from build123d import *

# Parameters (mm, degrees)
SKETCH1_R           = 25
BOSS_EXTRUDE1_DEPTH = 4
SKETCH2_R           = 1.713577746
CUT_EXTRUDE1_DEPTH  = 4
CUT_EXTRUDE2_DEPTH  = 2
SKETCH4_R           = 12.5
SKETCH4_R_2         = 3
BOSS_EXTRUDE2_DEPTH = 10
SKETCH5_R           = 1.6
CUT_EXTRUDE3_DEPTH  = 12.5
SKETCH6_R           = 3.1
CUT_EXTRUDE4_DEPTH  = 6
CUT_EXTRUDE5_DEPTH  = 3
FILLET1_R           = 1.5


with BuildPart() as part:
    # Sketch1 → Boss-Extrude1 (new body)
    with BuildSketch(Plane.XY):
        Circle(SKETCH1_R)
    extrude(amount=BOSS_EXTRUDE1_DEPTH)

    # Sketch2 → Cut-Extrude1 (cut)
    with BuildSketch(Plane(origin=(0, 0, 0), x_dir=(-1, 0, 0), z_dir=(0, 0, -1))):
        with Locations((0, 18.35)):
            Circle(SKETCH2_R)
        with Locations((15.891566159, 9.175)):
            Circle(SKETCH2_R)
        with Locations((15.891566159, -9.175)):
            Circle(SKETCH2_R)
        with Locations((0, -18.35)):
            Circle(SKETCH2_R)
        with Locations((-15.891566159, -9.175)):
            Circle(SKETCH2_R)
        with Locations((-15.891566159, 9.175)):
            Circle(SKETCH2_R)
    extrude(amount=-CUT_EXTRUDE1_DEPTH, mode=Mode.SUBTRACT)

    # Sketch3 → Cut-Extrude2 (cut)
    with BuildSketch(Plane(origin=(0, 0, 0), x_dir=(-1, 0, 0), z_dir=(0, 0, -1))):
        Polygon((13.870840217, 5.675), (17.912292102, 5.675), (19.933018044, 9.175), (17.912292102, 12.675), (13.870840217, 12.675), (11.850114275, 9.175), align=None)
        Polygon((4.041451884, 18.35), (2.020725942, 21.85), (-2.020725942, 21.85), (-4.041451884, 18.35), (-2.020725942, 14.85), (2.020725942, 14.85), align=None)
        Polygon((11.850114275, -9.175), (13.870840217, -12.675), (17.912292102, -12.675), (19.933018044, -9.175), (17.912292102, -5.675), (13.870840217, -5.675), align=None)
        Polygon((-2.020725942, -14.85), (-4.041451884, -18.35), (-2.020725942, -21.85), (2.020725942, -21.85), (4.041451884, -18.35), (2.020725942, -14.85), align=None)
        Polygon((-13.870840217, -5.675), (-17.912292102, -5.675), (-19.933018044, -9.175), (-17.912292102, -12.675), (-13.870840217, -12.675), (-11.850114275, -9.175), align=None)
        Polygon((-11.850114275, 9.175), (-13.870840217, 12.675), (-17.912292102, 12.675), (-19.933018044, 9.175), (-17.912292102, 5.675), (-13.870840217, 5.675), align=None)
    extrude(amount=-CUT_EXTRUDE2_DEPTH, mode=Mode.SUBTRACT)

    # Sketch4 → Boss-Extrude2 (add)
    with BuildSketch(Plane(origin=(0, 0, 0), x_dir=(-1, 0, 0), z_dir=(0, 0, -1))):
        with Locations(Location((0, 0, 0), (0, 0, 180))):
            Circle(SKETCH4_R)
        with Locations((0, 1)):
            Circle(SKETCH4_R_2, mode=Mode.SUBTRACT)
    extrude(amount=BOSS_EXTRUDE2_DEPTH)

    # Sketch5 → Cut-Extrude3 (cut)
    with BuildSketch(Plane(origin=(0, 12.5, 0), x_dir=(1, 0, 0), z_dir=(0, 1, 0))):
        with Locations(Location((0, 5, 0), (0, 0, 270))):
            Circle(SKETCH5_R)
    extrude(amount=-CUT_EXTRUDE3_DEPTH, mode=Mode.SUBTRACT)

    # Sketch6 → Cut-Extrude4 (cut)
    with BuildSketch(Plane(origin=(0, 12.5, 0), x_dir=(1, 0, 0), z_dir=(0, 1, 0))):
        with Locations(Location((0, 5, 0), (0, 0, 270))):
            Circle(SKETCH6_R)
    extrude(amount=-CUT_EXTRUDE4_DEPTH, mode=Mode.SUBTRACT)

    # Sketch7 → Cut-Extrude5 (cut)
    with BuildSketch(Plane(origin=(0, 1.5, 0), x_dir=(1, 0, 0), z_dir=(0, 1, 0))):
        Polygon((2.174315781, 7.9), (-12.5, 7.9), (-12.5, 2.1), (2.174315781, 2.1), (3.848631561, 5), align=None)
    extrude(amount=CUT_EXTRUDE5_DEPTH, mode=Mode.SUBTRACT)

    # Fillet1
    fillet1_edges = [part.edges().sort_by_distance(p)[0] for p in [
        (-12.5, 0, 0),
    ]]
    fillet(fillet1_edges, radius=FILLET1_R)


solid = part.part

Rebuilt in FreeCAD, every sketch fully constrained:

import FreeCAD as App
import Part
import Sketcher

V = App.Vector
Q = App.Units.Quantity


def edges_at(feature, points):
    """Names of the edges that pass closest to the given points."""
    edges = feature.Shape.Edges
    near = lambda p: min(range(len(edges)), key=lambda i: edges[i].distToShape(Part.Vertex(*p))[0])
    return sorted({f"Edge{near(p) + 1}" for p in points})

doc = App.newDocument("Part")
body = doc.addObject("PartDesign::Body", "Body")

# Sketch on XY plane
sketch1 = body.newObject("Sketcher::SketchObject", "Sketch")
sketch1.AttachmentSupport = (doc.getObject("XY_Plane"), [""])
sketch1.MapMode = "FlatFace"
sketch1.addGeometry(Part.Circle(V(0, 0, 0), V(0, 0, 1), 25), False)
sketch1.addConstraint([
    Sketcher.Constraint("Coincident", 0, 3, -1, 1),
    Sketcher.Constraint("Diameter", 0, 50.0),
])
pad1 = body.newObject("PartDesign::Pad", "Pad")
pad1.Profile = sketch1
pad1.Length = 4

# Sketch on XY plane
sketch2 = body.newObject("Sketcher::SketchObject", "Sketch001")
sketch2.AttachmentSupport = (doc.getObject("XY_Plane"), [""])
sketch2.MapMode = "FlatFace"
sketch2.addGeometry([
    Part.Circle(V(0, 18.4, 0), V(0, 0, 1), 1.7),  # 0
    Part.Circle(V(-15.9, 9.2, 0), V(0, 0, 1), 1.7),  # 1
    Part.Circle(V(-15.9, -9.2, 0), V(0, 0, 1), 1.7),  # 2
    Part.Circle(V(0, -18.4, 0), V(0, 0, 1), 1.7),  # 3
    Part.Circle(V(15.9, -9.2, 0), V(0, 0, 1), 1.7),  # 4
    Part.Circle(V(15.9, 9.2, 0), V(0, 0, 1), 1.7),  # 5
], False)
sketch2.addConstraint([
    Sketcher.Constraint("Equal", 0, 1),
    Sketcher.Constraint("Equal", 1, 2),
    Sketcher.Constraint("Equal", 2, 3),
    Sketcher.Constraint("Equal", 3, 4),
    Sketcher.Constraint("Equal", 4, 5),
    Sketcher.Constraint("Symmetric", 0, 3, 3, 3, -1, 1),
    Sketcher.Constraint("Symmetric", 1, 3, 4, 3, -1, 1),
    Sketcher.Constraint("Symmetric", 2, 3, 5, 3, -1, 1),
    Sketcher.Constraint("Symmetric", 2, 3, 4, 3, -2),
    Sketcher.Constraint("PointOnObject", 0, 3, -2),
    Sketcher.Constraint("DistanceY", 3, 3, 0, 3, 36.7),
    Sketcher.Constraint("DistanceY", 2, 3, 1, 3, 18.35),
    Sketcher.Constraint("Diameter", 0, 3.427155),
    Sketcher.Constraint("DistanceX", 1, 3, -1, 1, 15.891566),
])
pocket1 = body.newObject("PartDesign::Pocket", "Pocket")
pocket1.Profile = sketch2
pocket1.Length = 4
pocket1.Reversed = True

# Sketch on XY plane
sketch3 = body.newObject("Sketcher::SketchObject", "Sketch002")
sketch3.AttachmentSupport = (doc.getObject("XY_Plane"), [""])
sketch3.MapMode = "FlatFace"
sketch3.addGeometry([
    Part.LineSegment(V(-13.9, 5.7, 0), V(-17.9, 5.7, 0)),  # 0
    Part.LineSegment(V(-17.9, 5.7, 0), V(-19.9, 9.2, 0)),  # 1
    Part.LineSegment(V(-19.9, 9.2, 0), V(-17.9, 12.7, 0)),  # 2
    Part.LineSegment(V(-17.9, 12.7, 0), V(-13.9, 12.7, 0)),  # 3
    Part.LineSegment(V(-13.9, 12.7, 0), V(-11.9, 9.2, 0)),  # 4
    Part.LineSegment(V(-11.9, 9.2, 0), V(-13.9, 5.7, 0)),  # 5
    Part.LineSegment(V(-4, 18.4, 0), V(-2, 21.9, 0)),  # 6
    Part.LineSegment(V(-2, 21.9, 0), V(2, 21.9, 0)),  # 7
    Part.LineSegment(V(2, 21.9, 0), V(4, 18.4, 0)),  # 8
    Part.LineSegment(V(4, 18.4, 0), V(2, 14.8, 0)),  # 9
    Part.LineSegment(V(2, 14.8, 0), V(-2, 14.8, 0)),  # 10
    Part.LineSegment(V(-2, 14.8, 0), V(-4, 18.4, 0)),  # 11
    Part.LineSegment(V(-11.9, -9.2, 0), V(-13.9, -12.7, 0)),  # 12
    Part.LineSegment(V(-13.9, -12.7, 0), V(-17.9, -12.7, 0)),  # 13
    Part.LineSegment(V(-17.9, -12.7, 0), V(-19.9, -9.2, 0)),  # 14
    Part.LineSegment(V(-19.9, -9.2, 0), V(-17.9, -5.7, 0)),  # 15
    Part.LineSegment(V(-17.9, -5.7, 0), V(-13.9, -5.7, 0)),  # 16
    Part.LineSegment(V(-13.9, -5.7, 0), V(-11.9, -9.2, 0)),  # 17
    Part.LineSegment(V(2, -14.8, 0), V(4, -18.4, 0)),  # 18
    Part.LineSegment(V(4, -18.4, 0), V(2, -21.9, 0)),  # 19
    Part.LineSegment(V(2, -21.9, 0), V(-2, -21.9, 0)),  # 20
    Part.LineSegment(V(-2, -21.9, 0), V(-4, -18.4, 0)),  # 21
    Part.LineSegment(V(-4, -18.4, 0), V(-2, -14.8, 0)),  # 22
    Part.LineSegment(V(-2, -14.8, 0), V(2, -14.8, 0)),  # 23
    Part.LineSegment(V(13.9, -5.7, 0), V(17.9, -5.7, 0)),  # 24
    Part.LineSegment(V(17.9, -5.7, 0), V(19.9, -9.2, 0)),  # 25
    Part.LineSegment(V(19.9, -9.2, 0), V(17.9, -12.7, 0)),  # 26
    Part.LineSegment(V(17.9, -12.7, 0), V(13.9, -12.7, 0)),  # 27
    Part.LineSegment(V(13.9, -12.7, 0), V(11.9, -9.2, 0)),  # 28
    Part.LineSegment(V(11.9, -9.2, 0), V(13.9, -5.7, 0)),  # 29
    Part.LineSegment(V(11.9, 9.2, 0), V(13.9, 12.7, 0)),  # 30
    Part.LineSegment(V(13.9, 12.7, 0), V(17.9, 12.7, 0)),  # 31
    Part.LineSegment(V(17.9, 12.7, 0), V(19.9, 9.2, 0)),  # 32
    Part.LineSegment(V(19.9, 9.2, 0), V(17.9, 5.7, 0)),  # 33
    Part.LineSegment(V(17.9, 5.7, 0), V(13.9, 5.7, 0)),  # 34
    Part.LineSegment(V(13.9, 5.7, 0), V(11.9, 9.2, 0)),  # 35
], False)
sketch3.addConstraint([
    Sketcher.Constraint("Coincident", 0, 2, 1, 1),
    Sketcher.Constraint("Coincident", 1, 2, 2, 1),
    Sketcher.Constraint("Coincident", 2, 2, 3, 1),
    Sketcher.Constraint("Coincident", 3, 2, 4, 1),
    Sketcher.Constraint("Coincident", 4, 2, 5, 1),
    Sketcher.Constraint("Coincident", 5, 2, 0, 1),
    Sketcher.Constraint("Coincident", 6, 2, 7, 1),
    Sketcher.Constraint("Coincident", 7, 2, 8, 1),
    Sketcher.Constraint("Coincident", 8, 2, 9, 1),
    Sketcher.Constraint("Coincident", 9, 2, 10, 1),
    Sketcher.Constraint("Coincident", 10, 2, 11, 1),
    Sketcher.Constraint("Coincident", 11, 2, 6, 1),
    Sketcher.Constraint("Coincident", 12, 2, 13, 1),
    Sketcher.Constraint("Coincident", 13, 2, 14, 1),
    Sketcher.Constraint("Coincident", 14, 2, 15, 1),
    Sketcher.Constraint("Coincident", 15, 2, 16, 1),
    Sketcher.Constraint("Coincident", 16, 2, 17, 1),
    Sketcher.Constraint("Coincident", 17, 2, 12, 1),
    Sketcher.Constraint("Coincident", 18, 2, 19, 1),
    Sketcher.Constraint("Coincident", 19, 2, 20, 1),
    Sketcher.Constraint("Coincident", 20, 2, 21, 1),
    Sketcher.Constraint("Coincident", 21, 2, 22, 1),
    Sketcher.Constraint("Coincident", 22, 2, 23, 1),
    Sketcher.Constraint("Coincident", 23, 2, 18, 1),
    Sketcher.Constraint("Coincident", 24, 2, 25, 1),
    Sketcher.Constraint("Coincident", 25, 2, 26, 1),
    Sketcher.Constraint("Coincident", 26, 2, 27, 1),
    Sketcher.Constraint("Coincident", 27, 2, 28, 1),
    Sketcher.Constraint("Coincident", 28, 2, 29, 1),
    Sketcher.Constraint("Coincident", 29, 2, 24, 1),
    Sketcher.Constraint("Coincident", 30, 2, 31, 1),
    Sketcher.Constraint("Coincident", 31, 2, 32, 1),
    Sketcher.Constraint("Coincident", 32, 2, 33, 1),
    Sketcher.Constraint("Coincident", 33, 2, 34, 1),
    Sketcher.Constraint("Coincident", 34, 2, 35, 1),
    Sketcher.Constraint("Coincident", 35, 2, 30, 1),
    Sketcher.Constraint("Horizontal", 0),
    Sketcher.Constraint("Horizontal", 3),
    Sketcher.Constraint("Horizontal", 7),
    Sketcher.Constraint("Horizontal", 10),
    Sketcher.Constraint("Horizontal", 13),
    Sketcher.Constraint("Horizontal", 16),
    Sketcher.Constraint("Horizontal", 20),
    Sketcher.Constraint("Horizontal", 23),
    Sketcher.Constraint("Horizontal", 24),
    Sketcher.Constraint("Horizontal", 27),
    Sketcher.Constraint("Horizontal", 31),
    Sketcher.Constraint("Horizontal", 34),
    Sketcher.Constraint("Symmetric", 11, 2, 18, 2, -1, 1),
    Sketcher.Constraint("Symmetric", 6, 2, 19, 2, -1, 1),
    Sketcher.Constraint("Symmetric", 8, 2, 21, 2, -1, 1),
    Sketcher.Constraint("Symmetric", 9, 2, 22, 2, -1, 1),
    Sketcher.Constraint("Symmetric", 0, 2, 24, 2, -1, 1),
    Sketcher.Constraint("Symmetric", 1, 2, 25, 2, -1, 1),
    Sketcher.Constraint("Symmetric", 2, 2, 26, 2, -1, 1),
    Sketcher.Constraint("Symmetric", 4, 2, 28, 2, -1, 1),
    Sketcher.Constraint("Symmetric", 12, 2, 30, 2, -1, 1),
    Sketcher.Constraint("Symmetric", 14, 2, 32, 2, -1, 1),
    Sketcher.Constraint("Symmetric", 15, 2, 33, 2, -1, 1),
    Sketcher.Constraint("Symmetric", 17, 2, 35, 2, -1, 1),
    Sketcher.Constraint("Symmetric", 8, 2, 11, 2, -2),
    Sketcher.Constraint("Symmetric", 15, 2, 24, 2, -2),
    Sketcher.Constraint("Symmetric", 14, 2, 25, 2, -2),
    Sketcher.Constraint("Symmetric", 13, 2, 26, 2, -2),
    Sketcher.Constraint("Symmetric", 17, 2, 28, 2, -2),
    Sketcher.Constraint("Parallel", 1, 4),
    Sketcher.Constraint("Parallel", 2, 5),
    Sketcher.Constraint("Parallel", 5, 6),
    Sketcher.Constraint("Parallel", 4, 8),
    Sketcher.Constraint("Parallel", 6, 9),
    Sketcher.Constraint("Parallel", 8, 11),
    Sketcher.Constraint("Parallel", 9, 12),
    Sketcher.Constraint("Parallel", 11, 14),
    Sketcher.Constraint("Parallel", 14, 17),
    Sketcher.Constraint("Parallel", 17, 18),
    Sketcher.Constraint("Parallel", 18, 21),
    Sketcher.Constraint("Parallel", 25, 28),
    Sketcher.Constraint("Parallel", 26, 29),
    Sketcher.Constraint("Parallel", 28, 32),
    Sketcher.Constraint("Parallel", 32, 35),
    Sketcher.Constraint("Horizontal", 1, 2, 4, 2),
    Sketcher.Constraint("Vertical", 0, 2, 2, 2),
    Sketcher.Constraint("Vertical", 7, 2, 9, 2),
    Sketcher.Constraint("Equal", 3, 7),
    Sketcher.Constraint("Equal", 5, 6),
    Sketcher.Constraint("Angle", 1, Q("120 deg")),
    Sketcher.Constraint("DistanceY", 0, 2, 2, 2, 7.0),
    Sketcher.Constraint("DistanceY", -1, 1, 6, 2, 21.85),
    Sketcher.Constraint("DistanceY", 12, 2, 5, 2, 18.35),
    Sketcher.Constraint("DistanceX", 0, 2, 0, 1, 4.041452),
    Sketcher.Constraint("DistanceX", 1, 2, -1, 1, 19.933018),
])
pocket2 = body.newObject("PartDesign::Pocket", "Pocket001")
pocket2.Profile = sketch3
pocket2.Length = 2
pocket2.Reversed = True

# Sketch on XY plane
sketch4 = body.newObject("Sketcher::SketchObject", "Sketch003")
sketch4.AttachmentSupport = (doc.getObject("XY_Plane"), [""])
sketch4.MapMode = "FlatFace"
sketch4.addGeometry([
    Part.Circle(V(0, 0, 0), V(0, 0, 1), 12.5),
    Part.Circle(V(0, 1, 0), V(0, 0, 1), 3),
], False)
sketch4.addConstraint([
    Sketcher.Constraint("Coincident", 0, 3, -1, 1),
    Sketcher.Constraint("PointOnObject", 1, 3, -2),
    Sketcher.Constraint("Diameter", 0, 25.0),
    Sketcher.Constraint("Diameter", 1, 6.0),
    Sketcher.Constraint("DistanceY", -1, 1, 1, 3, 1.0),
])
pad2 = body.newObject("PartDesign::Pad", "Pad001")
pad2.Profile = sketch4
pad2.Length = 10
pad2.Reversed = True

# Sketch on XZ plane
sketch5 = body.newObject("Sketcher::SketchObject", "Sketch004")
sketch5.AttachmentSupport = (doc.getObject("XZ_Plane"), [""])
sketch5.MapMode = "FlatFace"
sketch5.AttachmentOffset = App.Placement(V(0, 0, -12.5), App.Rotation())
sketch5.addGeometry(Part.Circle(V(0, -5, 0), V(0, 0, 1), 1.6), False)
sketch5.addConstraint([
    Sketcher.Constraint("PointOnObject", 0, 3, -2),
    Sketcher.Constraint("Diameter", 0, 3.2),
    Sketcher.Constraint("DistanceY", 0, 3, -1, 1, 5.0),
])
pocket3 = body.newObject("PartDesign::Pocket", "Pocket002")
pocket3.Profile = sketch5
pocket3.Length = 12.5
pocket3.Reversed = True

# Sketch on XZ plane
sketch6 = body.newObject("Sketcher::SketchObject", "Sketch005")
sketch6.AttachmentSupport = (doc.getObject("XZ_Plane"), [""])
sketch6.MapMode = "FlatFace"
sketch6.AttachmentOffset = App.Placement(V(0, 0, -12.5), App.Rotation())
sketch6.addGeometry(Part.Circle(V(0, -5, 0), V(0, 0, 1), 3.1), False)
sketch6.addConstraint([
    Sketcher.Constraint("PointOnObject", 0, 3, -2),
    Sketcher.Constraint("Diameter", 0, 6.2),
    Sketcher.Constraint("DistanceY", 0, 3, -1, 1, 5.0),
])
pocket4 = body.newObject("PartDesign::Pocket", "Pocket003")
pocket4.Profile = sketch6
pocket4.Length = 6
pocket4.Reversed = True

# Sketch on XZ plane
sketch7 = body.newObject("Sketcher::SketchObject", "Sketch006")
sketch7.AttachmentSupport = (doc.getObject("XZ_Plane"), [""])
sketch7.MapMode = "FlatFace"
sketch7.AttachmentOffset = App.Placement(V(0, 0, -1.5), App.Rotation())
sketch7.addGeometry([
    Part.LineSegment(V(2.2, -7.9, 0), V(-12.5, -7.9, 0)),  # 0
    Part.LineSegment(V(-12.5, -7.9, 0), V(-12.5, -2.1, 0)),  # 1
    Part.LineSegment(V(-12.5, -2.1, 0), V(2.2, -2.1, 0)),  # 2
    Part.LineSegment(V(2.2, -2.1, 0), V(3.8, -5, 0)),  # 3
    Part.LineSegment(V(3.8, -5, 0), V(2.2, -7.9, 0)),  # 4
], False)
sketch7.addConstraint([
    Sketcher.Constraint("Coincident", 0, 2, 1, 1),
    Sketcher.Constraint("Coincident", 1, 2, 2, 1),
    Sketcher.Constraint("Coincident", 2, 2, 3, 1),
    Sketcher.Constraint("Coincident", 3, 2, 4, 1),
    Sketcher.Constraint("Coincident", 4, 2, 0, 1),
    Sketcher.Constraint("Horizontal", 0),
    Sketcher.Constraint("Vertical", 1),
    Sketcher.Constraint("Horizontal", 2),
    Sketcher.Constraint("Vertical", 2, 2, 4, 2),
    Sketcher.Constraint("Equal", 3, 4),
    Sketcher.Constraint("Angle", 3, Q("-60 deg")),
    Sketcher.Constraint("DistanceY", 1, 1, 1, 2, 5.8),
    Sketcher.Constraint("DistanceY", 3, 2, -1, 1, 5.0),
    Sketcher.Constraint("DistanceX", 0, 2, -1, 1, 12.5),
    Sketcher.Constraint("DistanceX", 0, 2, 0, 1, 14.674316),
])
pocket5 = body.newObject("PartDesign::Pocket", "Pocket004")
pocket5.Profile = sketch7
pocket5.Length = 3
doc.recompute()

fillet = body.newObject("PartDesign::Fillet", "Fillet")
fillet.Base = (pocket5, edges_at(pocket5, [(-12.5, 0, 0)]))
fillet.Radius = 1.5

doc.recompute()
